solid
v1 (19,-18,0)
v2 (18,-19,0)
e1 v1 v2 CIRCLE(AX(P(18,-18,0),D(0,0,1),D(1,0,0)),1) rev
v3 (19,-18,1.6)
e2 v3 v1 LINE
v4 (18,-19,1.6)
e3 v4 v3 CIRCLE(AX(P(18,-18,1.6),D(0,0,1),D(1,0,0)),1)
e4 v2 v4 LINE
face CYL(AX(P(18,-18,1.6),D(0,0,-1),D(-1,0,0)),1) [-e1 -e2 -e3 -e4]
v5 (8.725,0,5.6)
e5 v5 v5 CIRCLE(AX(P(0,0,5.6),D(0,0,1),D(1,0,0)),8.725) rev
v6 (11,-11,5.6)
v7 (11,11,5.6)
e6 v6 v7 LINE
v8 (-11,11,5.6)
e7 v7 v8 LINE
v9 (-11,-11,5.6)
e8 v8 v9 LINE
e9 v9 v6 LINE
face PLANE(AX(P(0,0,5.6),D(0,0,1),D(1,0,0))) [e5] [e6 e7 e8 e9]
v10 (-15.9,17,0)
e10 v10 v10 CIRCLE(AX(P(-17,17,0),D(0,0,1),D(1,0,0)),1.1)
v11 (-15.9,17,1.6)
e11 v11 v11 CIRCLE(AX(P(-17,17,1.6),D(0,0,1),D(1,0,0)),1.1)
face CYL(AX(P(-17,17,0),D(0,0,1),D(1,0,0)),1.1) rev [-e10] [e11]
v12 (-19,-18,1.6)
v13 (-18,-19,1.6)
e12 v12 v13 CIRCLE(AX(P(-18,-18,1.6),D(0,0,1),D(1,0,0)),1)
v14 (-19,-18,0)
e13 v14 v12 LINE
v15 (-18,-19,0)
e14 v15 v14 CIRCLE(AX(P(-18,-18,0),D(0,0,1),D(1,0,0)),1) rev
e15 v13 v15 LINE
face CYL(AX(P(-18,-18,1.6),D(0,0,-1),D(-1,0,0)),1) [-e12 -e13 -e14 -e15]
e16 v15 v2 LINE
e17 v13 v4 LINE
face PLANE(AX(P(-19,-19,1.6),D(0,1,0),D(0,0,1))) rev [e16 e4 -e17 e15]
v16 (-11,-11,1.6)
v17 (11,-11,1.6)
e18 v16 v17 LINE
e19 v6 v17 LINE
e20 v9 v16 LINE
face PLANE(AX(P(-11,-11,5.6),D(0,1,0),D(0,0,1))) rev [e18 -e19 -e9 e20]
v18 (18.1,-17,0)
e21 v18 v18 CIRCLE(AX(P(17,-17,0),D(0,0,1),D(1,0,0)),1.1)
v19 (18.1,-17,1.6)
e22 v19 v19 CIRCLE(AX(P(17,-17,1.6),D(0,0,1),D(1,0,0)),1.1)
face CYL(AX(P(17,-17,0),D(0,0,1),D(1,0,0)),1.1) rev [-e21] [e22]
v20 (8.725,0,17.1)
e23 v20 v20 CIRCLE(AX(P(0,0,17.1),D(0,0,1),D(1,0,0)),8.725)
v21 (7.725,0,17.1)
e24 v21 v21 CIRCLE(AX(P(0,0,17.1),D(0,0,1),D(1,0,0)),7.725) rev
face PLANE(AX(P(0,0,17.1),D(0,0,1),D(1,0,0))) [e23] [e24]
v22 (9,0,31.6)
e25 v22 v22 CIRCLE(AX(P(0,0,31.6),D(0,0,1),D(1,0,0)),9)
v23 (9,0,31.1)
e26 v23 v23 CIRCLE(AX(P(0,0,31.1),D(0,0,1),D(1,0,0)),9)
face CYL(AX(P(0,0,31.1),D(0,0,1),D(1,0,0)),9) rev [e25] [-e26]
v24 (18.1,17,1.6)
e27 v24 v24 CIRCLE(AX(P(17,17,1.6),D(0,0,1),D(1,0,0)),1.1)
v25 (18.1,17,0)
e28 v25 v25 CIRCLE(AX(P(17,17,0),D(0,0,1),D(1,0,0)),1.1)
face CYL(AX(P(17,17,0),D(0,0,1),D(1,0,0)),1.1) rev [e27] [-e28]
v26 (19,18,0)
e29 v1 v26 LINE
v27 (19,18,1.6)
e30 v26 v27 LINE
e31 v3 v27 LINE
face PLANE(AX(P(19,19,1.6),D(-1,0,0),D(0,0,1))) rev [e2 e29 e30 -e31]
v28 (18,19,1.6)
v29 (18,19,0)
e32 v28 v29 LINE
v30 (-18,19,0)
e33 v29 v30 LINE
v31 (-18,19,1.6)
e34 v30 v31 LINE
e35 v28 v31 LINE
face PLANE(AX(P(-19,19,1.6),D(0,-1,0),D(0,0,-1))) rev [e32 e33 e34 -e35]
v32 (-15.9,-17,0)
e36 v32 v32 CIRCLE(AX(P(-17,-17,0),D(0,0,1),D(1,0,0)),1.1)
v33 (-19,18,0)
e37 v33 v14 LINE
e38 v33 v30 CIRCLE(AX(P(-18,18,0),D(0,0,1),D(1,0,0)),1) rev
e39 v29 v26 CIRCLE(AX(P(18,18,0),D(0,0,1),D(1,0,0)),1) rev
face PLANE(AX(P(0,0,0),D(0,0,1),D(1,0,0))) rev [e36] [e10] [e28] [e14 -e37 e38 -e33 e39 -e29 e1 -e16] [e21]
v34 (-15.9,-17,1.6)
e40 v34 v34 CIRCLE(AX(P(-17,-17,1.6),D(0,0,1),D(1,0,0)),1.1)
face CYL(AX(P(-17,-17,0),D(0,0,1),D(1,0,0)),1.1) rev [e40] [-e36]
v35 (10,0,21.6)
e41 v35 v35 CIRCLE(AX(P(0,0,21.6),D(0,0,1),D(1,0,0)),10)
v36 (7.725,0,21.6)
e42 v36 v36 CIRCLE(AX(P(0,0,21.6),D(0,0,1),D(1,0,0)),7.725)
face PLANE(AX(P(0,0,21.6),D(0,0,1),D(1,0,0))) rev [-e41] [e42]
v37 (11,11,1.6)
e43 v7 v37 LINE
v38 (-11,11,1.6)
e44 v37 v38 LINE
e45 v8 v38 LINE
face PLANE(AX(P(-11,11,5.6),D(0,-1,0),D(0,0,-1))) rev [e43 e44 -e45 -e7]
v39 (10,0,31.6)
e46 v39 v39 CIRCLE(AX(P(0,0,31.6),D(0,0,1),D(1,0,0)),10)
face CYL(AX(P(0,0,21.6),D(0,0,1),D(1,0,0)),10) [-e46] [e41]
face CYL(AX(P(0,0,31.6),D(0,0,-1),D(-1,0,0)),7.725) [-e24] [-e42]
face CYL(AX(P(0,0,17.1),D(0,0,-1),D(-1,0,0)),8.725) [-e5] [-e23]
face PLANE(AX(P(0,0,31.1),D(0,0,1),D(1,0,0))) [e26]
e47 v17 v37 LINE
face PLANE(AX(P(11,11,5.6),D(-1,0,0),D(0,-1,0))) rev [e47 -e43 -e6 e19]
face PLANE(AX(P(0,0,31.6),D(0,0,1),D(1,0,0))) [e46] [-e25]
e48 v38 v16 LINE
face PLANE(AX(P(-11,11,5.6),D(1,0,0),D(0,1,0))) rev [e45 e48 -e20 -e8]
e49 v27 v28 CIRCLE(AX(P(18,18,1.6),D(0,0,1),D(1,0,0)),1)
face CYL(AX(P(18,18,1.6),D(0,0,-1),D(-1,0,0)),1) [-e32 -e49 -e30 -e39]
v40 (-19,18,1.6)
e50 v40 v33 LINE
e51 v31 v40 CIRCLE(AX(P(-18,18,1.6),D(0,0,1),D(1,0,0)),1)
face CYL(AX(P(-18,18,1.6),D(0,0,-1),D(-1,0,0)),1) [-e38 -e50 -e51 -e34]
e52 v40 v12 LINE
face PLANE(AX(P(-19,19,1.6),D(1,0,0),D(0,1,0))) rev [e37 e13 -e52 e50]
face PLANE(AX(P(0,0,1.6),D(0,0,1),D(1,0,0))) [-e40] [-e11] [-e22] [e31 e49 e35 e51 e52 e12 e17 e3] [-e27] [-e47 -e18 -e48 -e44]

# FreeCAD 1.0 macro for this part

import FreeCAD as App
import Part
import Sketcher


def edges_at(feature, points):
    """Names of the edges that pass closest to the given points."""
    edges = feature.Shape.Edges
    near = lambda p: min(range(len(edges)), key=lambda i: edges[i].distToShape(Part.Vertex(*p))[0])
    return sorted({f"Edge{near(p) + 1}" for p in points})


def add_polygon(sketch, points):
    """Adds a closed chain of lines whose ends are joined by coincident constraints."""
    first, n = sketch.GeometryCount, len(points)
    for a, b in zip(points, points[1:] + points[:1]):
        sketch.addGeometry(Part.LineSegment(App.Vector(*a, 0), App.Vector(*b, 0)), False)
    for i in range(n):
        sketch.addConstraint(Sketcher.Constraint("Coincident", first + i, 2, first + (i + 1) % n, 1))

doc = App.newDocument("Part")
params = doc.addObject("Spreadsheet::Sheet", "Params")
for row, (alias, value) in enumerate([
    ("sketch1_width", "38 mm"),
    ("pad1_length", "1.6 mm"),
    ("sketch2_diameter", "2.2 mm"),
    ("fillet_radius", "1 mm"),
    ("sketch3_width", "22 mm"),
    ("pad2_length", "4 mm"),
    ("sketch4_diameter", "17.45 mm"),
    ("pad3_length", "15.5 mm"),
    ("sketch5_diameter", "15.45 mm"),
    ("pad4_length", "30 mm"),
    ("sketch6_diameter", "20 mm"),
    ("pad5_length", "10 mm"),
    ("sketch7_diameter", "18 mm"),
    ("pocket2_length", "0.5 mm"),
], start=1):
    params.set(f"A{row}", alias)
    params.set(f"B{row}", "=" + value)
    params.setAlias(f"B{row}", alias)

body = doc.addObject("PartDesign::Body", "Body")

# Sketch on XY plane
sketch1 = doc.addObject("Sketcher::SketchObject", "Sketch")
body.addObject(sketch1)
sketch1.AttachmentSupport = (doc.XY_Plane, [""])
sketch1.MapMode = "FlatFace"
add_polygon(sketch1, [(-19, 19), (-19, -19), (19, -19), (19, 19)])  # lines 0-3
sketch1.addConstraint([
    Sketcher.Constraint("Vertical", 0),
    Sketcher.Constraint("Horizontal", 1),
    Sketcher.Constraint("Vertical", 2),
    Sketcher.Constraint("Horizontal", 3),
    Sketcher.Constraint("Symmetric", 0, 2, 2, 2, -1, 1),
    Sketcher.Constraint("Equal", 3, 0),
    Sketcher.Constraint("DistanceX", 1, 1, 1, 2, 38.0),
])
sketch1.setExpression("Constraints[10]", "Params.sketch1_width")
pad1 = doc.addObject("PartDesign::Pad", "Pad")
body.addObject(pad1)
pad1.Profile = sketch1
pad1.setExpression("Length", "Params.pad1_length")

# Sketch on XY plane
sketch2 = doc.addObject("Sketcher::SketchObject", "Sketch001")
body.addObject(sketch2)
sketch2.AttachmentSupport = (doc.XY_Plane, [""])
sketch2.MapMode = "FlatFace"
sketch2.AttachmentOffset = App.Placement(App.Vector(0, 0, 1.6), App.Rotation())
sketch2.addGeometry([
    Part.Circle(App.Vector(-17, 17, 0), App.Vector(0, 0, 1), 1.1),
    Part.Circle(App.Vector(17, -17, 0), App.Vector(0, 0, 1), 1.1),
    Part.Circle(App.Vector(17, 17, 0), App.Vector(0, 0, 1), 1.1),
    Part.Circle(App.Vector(-17, -17, 0), App.Vector(0, 0, 1), 1.1),
], False)
sketch2.addConstraint([
    Sketcher.Constraint("Equal", 0, 1),
    Sketcher.Constraint("Equal", 1, 2),
    Sketcher.Constraint("Equal", 2, 3),
    Sketcher.Constraint("Symmetric", 0, 3, 1, 3, -1, 1),
    Sketcher.Constraint("Symmetric", 2, 3, 3, 3, -1, 1),
    Sketcher.Constraint("Symmetric", 0, 3, 2, 3, -2),
    Sketcher.Constraint("Diameter", 0, 2.2),
    Sketcher.Constraint("DistanceX", 0, 3, -1, 1, 17.0),
    Sketcher.Constraint("DistanceY", -1, 1, 0, 3, 17.0),
])
sketch2.setExpression("Constraints[6]", "Params.sketch2_diameter")
pocket1 = doc.addObject("PartDesign::Pocket", "Pocket")
body.addObject(pocket1)
pocket1.Profile = sketch2
pocket1.Type = "ThroughAll"
doc.recompute()

fillet = doc.addObject("PartDesign::Fillet", "Fillet")
body.addObject(fillet)
fillet.Base = (pocket1, edges_at(pocket1, [
    (-19, 19, 0.8),
    (19, 19, 0.8),
    (19, -19, 0.8),
    (-19, -19, 0.8),
]))
fillet.setExpression("Radius", "Params.fillet_radius")

# Sketch on XY plane
sketch3 = doc.addObject("Sketcher::SketchObject", "Sketch002")
body.addObject(sketch3)
sketch3.AttachmentSupport = (doc.XY_Plane, [""])
sketch3.MapMode = "FlatFace"
sketch3.AttachmentOffset = App.Placement(App.Vector(0, 0, 1.6), App.Rotation())
add_polygon(sketch3, [(-11, 11), (-11, -11), (11, -11), (11, 11)])  # lines 0-3
sketch3.addConstraint([
    Sketcher.Constraint("Vertical", 0),
    Sketcher.Constraint("Horizontal", 1),
    Sketcher.Constraint("Vertical", 2),
    Sketcher.Constraint("Horizontal", 3),
    Sketcher.Constraint("Symmetric", 0, 2, 2, 2, -1, 1),
    Sketcher.Constraint("Equal", 3, 0),
    Sketcher.Constraint("DistanceX", 1, 1, 1, 2, 22.0),
])
sketch3.setExpression("Constraints[10]", "Params.sketch3_width")
pad2 = doc.addObject("PartDesign::Pad", "Pad001")
body.addObject(pad2)
pad2.Profile = sketch3
pad2.setExpression("Length", "Params.pad2_length")

# Sketch on XY plane
sketch4 = doc.addObject("Sketcher::SketchObject", "Sketch003")
body.addObject(sketch4)
sketch4.AttachmentSupport = (doc.XY_Plane, [""])
sketch4.MapMode = "FlatFace"
sketch4.AttachmentOffset = App.Placement(App.Vector(0, 0, 1.6), App.Rotation())
sketch4.addGeometry(Part.Circle(App.Vector(0, 0, 0), App.Vector(0, 0, 1), 9), False)
sketch4.addConstraint([
    Sketcher.Constraint("Coincident", 0, 3, -1, 1),
    Sketcher.Constraint("Diameter", 0, 17.45),
])
sketch4.setExpression("Constraints[1]", "Params.sketch4_diameter")
pad3 = doc.addObject("PartDesign::Pad", "Pad002")
body.addObject(pad3)
pad3.Profile = sketch4
pad3.setExpression("Length", "Params.pad3_length")

# Sketch on XY plane
sketch5 = doc.addObject("Sketcher::SketchObject", "Sketch004")
body.addObject(sketch5)
sketch5.AttachmentSupport = (doc.XY_Plane, [""])
sketch5.MapMode = "FlatFace"
sketch5.AttachmentOffset = App.Placement(App.Vector(0, 0, 1.6), App.Rotation())
sketch5.addGeometry(Part.Circle(App.Vector(0, 0, 0), App.Vector(0, 0, 1), 8), False)
sketch5.addConstraint([
    Sketcher.Constraint("Coincident", 0, 3, -1, 1),
    Sketcher.Constraint("Diameter", 0, 15.45),
])
sketch5.setExpression("Constraints[1]", "Params.sketch5_diameter")
pad4 = doc.addObject("PartDesign::Pad", "Pad003")
body.addObject(pad4)
pad4.Profile = sketch5
pad4.setExpression("Length", "Params.pad4_length")

# Sketch on XY plane
sketch6 = doc.addObject("Sketcher::SketchObject", "Sketch005")
body.addObject(sketch6)
sketch6.AttachmentSupport = (doc.XY_Plane, [""])
sketch6.MapMode = "FlatFace"
sketch6.AttachmentOffset = App.Placement(App.Vector(0, 0, 31.6), App.Rotation())
sketch6.addGeometry(Part.Circle(App.Vector(0, 0, 0), App.Vector(0, 0, 1), 10), False)
sketch6.addConstraint([
    Sketcher.Constraint("Coincident", 0, 3, -1, 1),
    Sketcher.Constraint("Diameter", 0, 20.0),
])
sketch6.setExpression("Constraints[1]", "Params.sketch6_diameter")
pad5 = doc.addObject("PartDesign::Pad", "Pad004")
body.addObject(pad5)
pad5.Profile = sketch6
pad5.setExpression("Length", "Params.pad5_length")
pad5.Reversed = True

# Sketch on XY plane
sketch7 = doc.addObject("Sketcher::SketchObject", "Sketch006")
body.addObject(sketch7)
sketch7.AttachmentSupport = (doc.XY_Plane, [""])
sketch7.MapMode = "FlatFace"
sketch7.AttachmentOffset = App.Placement(App.Vector(0, 0, 31.6), App.Rotation())
sketch7.addGeometry(Part.Circle(App.Vector(0, 0, 0), App.Vector(0, 0, 1), 9), False)
sketch7.addConstraint([
    Sketcher.Constraint("Coincident", 0, 3, -1, 1),
    Sketcher.Constraint("Diameter", 0, 18.0),
])
sketch7.setExpression("Constraints[1]", "Params.sketch7_diameter")
pocket2 = doc.addObject("PartDesign::Pocket", "Pocket001")
body.addObject(pocket2)
pocket2.Profile = sketch7
pocket2.setExpression("Length", "Params.pocket2_length")

doc.recompute()
